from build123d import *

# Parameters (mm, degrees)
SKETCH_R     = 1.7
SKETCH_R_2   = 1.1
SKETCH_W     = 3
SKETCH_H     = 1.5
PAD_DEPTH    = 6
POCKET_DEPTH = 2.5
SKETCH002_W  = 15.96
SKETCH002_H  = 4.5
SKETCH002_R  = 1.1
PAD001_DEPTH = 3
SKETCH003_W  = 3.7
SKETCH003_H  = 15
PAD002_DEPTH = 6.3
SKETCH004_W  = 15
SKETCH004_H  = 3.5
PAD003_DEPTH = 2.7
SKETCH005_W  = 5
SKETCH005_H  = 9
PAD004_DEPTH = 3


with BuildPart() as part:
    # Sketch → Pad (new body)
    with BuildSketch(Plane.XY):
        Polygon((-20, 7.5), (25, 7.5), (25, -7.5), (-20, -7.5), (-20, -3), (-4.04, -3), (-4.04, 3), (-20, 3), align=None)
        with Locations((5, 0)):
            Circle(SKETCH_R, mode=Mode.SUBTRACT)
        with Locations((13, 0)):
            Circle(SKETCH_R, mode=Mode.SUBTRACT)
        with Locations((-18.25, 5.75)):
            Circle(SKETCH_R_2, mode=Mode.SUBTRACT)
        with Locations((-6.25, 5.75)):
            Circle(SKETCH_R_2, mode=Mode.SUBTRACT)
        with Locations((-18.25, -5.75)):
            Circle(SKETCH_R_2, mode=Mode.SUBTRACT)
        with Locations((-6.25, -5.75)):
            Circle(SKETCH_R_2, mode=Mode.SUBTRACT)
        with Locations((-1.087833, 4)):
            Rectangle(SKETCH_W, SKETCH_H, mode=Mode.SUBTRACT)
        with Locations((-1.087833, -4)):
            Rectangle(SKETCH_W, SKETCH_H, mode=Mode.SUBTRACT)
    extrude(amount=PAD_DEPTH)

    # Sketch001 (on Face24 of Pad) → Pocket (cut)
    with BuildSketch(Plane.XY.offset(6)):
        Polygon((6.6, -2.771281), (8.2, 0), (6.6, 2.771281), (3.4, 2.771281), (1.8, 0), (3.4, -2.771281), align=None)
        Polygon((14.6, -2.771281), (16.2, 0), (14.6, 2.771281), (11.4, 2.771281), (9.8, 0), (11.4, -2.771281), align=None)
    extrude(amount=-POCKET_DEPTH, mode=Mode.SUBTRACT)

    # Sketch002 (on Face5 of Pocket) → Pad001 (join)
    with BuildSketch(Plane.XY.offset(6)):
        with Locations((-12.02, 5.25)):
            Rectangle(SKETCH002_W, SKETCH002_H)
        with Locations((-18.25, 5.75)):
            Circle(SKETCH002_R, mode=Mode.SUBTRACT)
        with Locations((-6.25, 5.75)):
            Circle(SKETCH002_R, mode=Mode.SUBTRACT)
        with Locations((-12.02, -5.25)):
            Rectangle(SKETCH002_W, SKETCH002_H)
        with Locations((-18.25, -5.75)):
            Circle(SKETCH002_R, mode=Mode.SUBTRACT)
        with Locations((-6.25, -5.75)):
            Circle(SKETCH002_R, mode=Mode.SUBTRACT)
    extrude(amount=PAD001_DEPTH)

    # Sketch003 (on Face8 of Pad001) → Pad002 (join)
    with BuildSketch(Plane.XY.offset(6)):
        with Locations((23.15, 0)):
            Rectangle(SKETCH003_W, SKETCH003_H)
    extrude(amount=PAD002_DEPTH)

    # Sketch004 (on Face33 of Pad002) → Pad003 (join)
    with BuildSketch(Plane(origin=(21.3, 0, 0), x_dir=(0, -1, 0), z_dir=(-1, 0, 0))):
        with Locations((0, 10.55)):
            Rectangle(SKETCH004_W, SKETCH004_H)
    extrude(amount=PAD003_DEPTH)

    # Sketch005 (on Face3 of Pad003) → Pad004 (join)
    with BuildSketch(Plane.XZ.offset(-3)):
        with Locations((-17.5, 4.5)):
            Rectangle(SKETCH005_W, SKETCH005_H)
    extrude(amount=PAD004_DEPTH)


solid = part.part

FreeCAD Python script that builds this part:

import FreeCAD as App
import Part
import Sketcher
from FreeCAD import Vector
Q = App.Units.Quantity

doc = App.newDocument("Part")
body = doc.addObject("PartDesign::Body", "Body")

sketch1 = body.newObject("Sketcher::SketchObject", "Sketch")
sketch1.AttachmentSupport = (doc.getObject("XY_Plane"), [""])
sketch1.MapMode = "FlatFace"
sketch1.addGeometry([
    Part.LineSegment(Vector(25, 7.5, 0), Vector(-20, 7.5, 0)),
    Part.LineSegment(Vector(-20, 7.5, 0), Vector(-20, 3, 0)),
    Part.LineSegment(Vector(-20, 3, 0), Vector(-4.04, 3, 0)),
    Part.LineSegment(Vector(-4.04, 3, 0), Vector(-4.04, -3, 0)),
    Part.LineSegment(Vector(-4.04, -3, 0), Vector(-20, -3, 0)),
    Part.LineSegment(Vector(-20, -3, 0), Vector(-20, -7.5, 0)),
    Part.LineSegment(Vector(-20, -7.5, 0), Vector(25, -7.5, 0)),
    Part.LineSegment(Vector(25, -7.5, 0), Vector(25, 7.5, 0)),
    Part.LineSegment(Vector(-2.587833, -4.75, 0), Vector(-2.587833, -3.25, 0)),
    Part.LineSegment(Vector(-2.587833, -3.25, 0), Vector(0.412167, -3.25, 0)),
    Part.LineSegment(Vector(0.412167, -3.25, 0), Vector(0.412167, -4.75, 0)),
    Part.LineSegment(Vector(0.412167, -4.75, 0), Vector(-2.587833, -4.75, 0)),
    Part.Circle(Vector(13, 0, 0), Vector(0, 0, 1), 1.7),
    Part.Circle(Vector(5, 0, 0), Vector(0, 0, 1), 1.7),
    Part.Circle(Vector(-6.25, -5.75, 0), Vector(0, 0, 1), 1.1),
    Part.Circle(Vector(-18.25, -5.75, 0), Vector(0, 0, 1), 1.1),
    Part.LineSegment(Vector(-2.587833, 3.25, 0), Vector(-2.587833, 4.75, 0)),
    Part.LineSegment(Vector(-2.587833, 4.75, 0), Vector(0.412167, 4.75, 0)),
    Part.LineSegment(Vector(0.412167, 4.75, 0), Vector(0.412167, 3.25, 0)),
    Part.LineSegment(Vector(0.412167, 3.25, 0), Vector(-2.587833, 3.25, 0)),
    Part.Circle(Vector(-6.25, 5.75, 0), Vector(0, 0, 1), 1.1),
    Part.Circle(Vector(-18.25, 5.75, 0), Vector(0, 0, 1), 1.1),
], False)
sketch1.addConstraint([
    Sketcher.Constraint("Coincident", 0, 2, 1, 1),
    Sketcher.Constraint("Coincident", 1, 2, 2, 1),
    Sketcher.Constraint("Coincident", 2, 2, 3, 1),
    Sketcher.Constraint("Coincident", 3, 2, 4, 1),
    Sketcher.Constraint("Coincident", 4, 2, 5, 1),
    Sketcher.Constraint("Coincident", 5, 2, 6, 1),
    Sketcher.Constraint("Coincident", 6, 2, 7, 1),
    Sketcher.Constraint("Coincident", 7, 2, 0, 1),
    Sketcher.Constraint("Coincident", 8, 2, 9, 1),
    Sketcher.Constraint("Coincident", 9, 2, 10, 1),
    Sketcher.Constraint("Coincident", 10, 2, 11, 1),
    Sketcher.Constraint("Coincident", 11, 2, 8, 1),
    Sketcher.Constraint("Coincident", 16, 2, 17, 1),
    Sketcher.Constraint("Coincident", 17, 2, 18, 1),
    Sketcher.Constraint("Coincident", 18, 2, 19, 1),
    Sketcher.Constraint("Coincident", 19, 2, 16, 1),
    Sketcher.Constraint("Horizontal", 0),
    Sketcher.Constraint("Vertical", 1),
    Sketcher.Constraint("Horizontal", 2),
    Sketcher.Constraint("Vertical", 3),
    Sketcher.Constraint("Horizontal", 4),
    Sketcher.Constraint("Vertical", 5),
    Sketcher.Constraint("Horizontal", 6),
    Sketcher.Constraint("Vertical", 7),
    Sketcher.Constraint("Vertical", 8),
    Sketcher.Constraint("Horizontal", 9),
    Sketcher.Constraint("Vertical", 10),
    Sketcher.Constraint("Horizontal", 11),
    Sketcher.Constraint("Vertical", 16),
    Sketcher.Constraint("Horizontal", 17),
    Sketcher.Constraint("Vertical", 18),
    Sketcher.Constraint("Horizontal", 19),
    Sketcher.Constraint("Equal", 12, 13),
    Sketcher.Constraint("Equal", 14, 15),
    Sketcher.Constraint("Equal", 15, 20),
    Sketcher.Constraint("Equal", 20, 21),
    Sketcher.Constraint("Symmetric", 14, 3, 20, 3, -1),
    Sketcher.Constraint("Symmetric", 15, 3, 21, 3, -1),
    Sketcher.Constraint("Symmetric", 1, 2, 4, 2, -1),
    Sketcher.Constraint("Symmetric", 11, 2, 16, 2, -1),
    Sketcher.Constraint("Symmetric", 9, 2, 18, 2, -1),
    Sketcher.Constraint("PointOnObject", 12, 3, -1),
    Sketcher.Constraint("PointOnObject", 13, 3, -1),
    Sketcher.Constraint("Horizontal", 14, 3, 15, 3),
    Sketcher.Constraint("Equal", 1, 5),
    Sketcher.Constraint("Diameter", 12, Q("3.4 mm")),
    Sketcher.Constraint("Diameter", 14, Q("2.2 mm")),
    Sketcher.Constraint("DistanceX", 0, 2, 0, 1, Q("45 mm")),
    Sketcher.Constraint("DistanceX", 9, 1, 9, 2, Q("3 mm")),
    Sketcher.Constraint("DistanceY", 3, 2, 3, 1, Q("6 mm")),
    Sketcher.Constraint("DistanceY", 7, 1, 7, 2, Q("15 mm")),
    Sketcher.Constraint("DistanceY", 8, 1, 8, 2, Q("1.5 mm")),
    Sketcher.Constraint("DistanceX", -1, 1, 12, 3, Q("13 mm")),
    Sketcher.Constraint("DistanceX", -1, 1, 13, 3, Q("5 mm")),
    Sketcher.Constraint("DistanceX", 0, 2, -1, 1, Q("20 mm")),
    Sketcher.Constraint("DistanceX", 15, 3, 14, 3, Q("12 mm")),
    Sketcher.Constraint("DistanceY", 8, 2, 20, 3, Q("9 mm")),
    Sketcher.Constraint("DistanceY", 14, 3, 10, 2, Q("1 mm")),
    Sketcher.Constraint("DistanceX", 2, 1, 2, 2, Q("15.96 mm")),
    Sketcher.Constraint("DistanceX", 14, 3, -1, 1, Q("6.25 mm")),
    Sketcher.Constraint("DistanceX", 8, 2, -1, 1, Q("2.587833 mm")),
])
pad1 = body.newObject("PartDesign::Pad", "Pad")
pad1.Profile = sketch1
pad1.Length = 6

sketch2 = body.newObject("Sketcher::SketchObject", "Sketch001")
sketch2.AttachmentSupport = (doc.getObject("XY_Plane"), [""])
sketch2.MapMode = "FlatFace"
sketch2.AttachmentOffset = App.Placement(Vector(0, 0, 6), App.Rotation())
sketch2.addGeometry([
    Part.LineSegment(Vector(6.6, -2.771281, 0), Vector(8.2, 0, 0)),
    Part.LineSegment(Vector(8.2, 0, 0), Vector(6.6, 2.771281, 0)),
    Part.LineSegment(Vector(6.6, 2.771281, 0), Vector(3.4, 2.771281, 0)),
    Part.LineSegment(Vector(3.4, 2.771281, 0), Vector(1.8, 0, 0)),
    Part.LineSegment(Vector(1.8, 0, 0), Vector(3.4, -2.771281, 0)),
    Part.LineSegment(Vector(3.4, -2.771281, 0), Vector(6.6, -2.771281, 0)),
    Part.LineSegment(Vector(14.6, -2.771281, 0), Vector(16.2, 0, 0)),
    Part.LineSegment(Vector(16.2, 0, 0), Vector(14.6, 2.771281, 0)),
    Part.LineSegment(Vector(14.6, 2.771281, 0), Vector(11.4, 2.771281, 0)),
    Part.LineSegment(Vector(11.4, 2.771281, 0), Vector(9.8, 0, 0)),
    Part.LineSegment(Vector(9.8, 0, 0), Vector(11.4, -2.771281, 0)),
    Part.LineSegment(Vector(11.4, -2.771281, 0), Vector(14.6, -2.771281, 0)),
], False)
sketch2.addConstraint([
    Sketcher.Constraint("Coincident", 0, 2, 1, 1),
    Sketcher.Constraint("Coincident", 1, 2, 2, 1),
    Sketcher.Constraint("Coincident", 2, 2, 3, 1),
    Sketcher.Constraint("Coincident", 3, 2, 4, 1),
    Sketcher.Constraint("Coincident", 4, 2, 5, 1),
    Sketcher.Constraint("Coincident", 5, 2, 0, 1),
    Sketcher.Constraint("Coincident", 6, 2, 7, 1),
    Sketcher.Constraint("Coincident", 7, 2, 8, 1),
    Sketcher.Constraint("Coincident", 8, 2, 9, 1),
    Sketcher.Constraint("Coincident", 9, 2, 10, 1),
    Sketcher.Constraint("Coincident", 10, 2, 11, 1),
    Sketcher.Constraint("Coincident", 11, 2, 6, 1),
    Sketcher.Constraint("Horizontal", 2),
    Sketcher.Constraint("Horizontal", 5),
    Sketcher.Constraint("Horizontal", 8),
    Sketcher.Constraint("Horizontal", 11),
    Sketcher.Constraint("Symmetric", 2, 2, 4, 2, -1),
    Sketcher.Constraint("Symmetric", 8, 2, 10, 2, -1),
    Sketcher.Constraint("PointOnObject", 0, 2, -1),
    Sketcher.Constraint("PointOnObject", 3, 2, -1),
    Sketcher.Constraint("PointOnObject", 6, 2, -1),
    Sketcher.Constraint("PointOnObject", 9, 2, -1),
    Sketcher.Constraint("Parallel", 0, 3),
    Sketcher.Constraint("Parallel", 1, 4),
    Sketcher.Constraint("Parallel", 3, 6),
    Sketcher.Constraint("Parallel", 4, 7),
    Sketcher.Constraint("Parallel", 6, 9),
    Sketcher.Constraint("Horizontal", 2, 2, 7, 2),
    Sketcher.Constraint("Equal", 5, 8),
    Sketcher.Constraint("Angle", 0, Q("59.999997 deg")),
    Sketcher.Constraint("DistanceX", 2, 2, 2, 1, Q("3.2 mm")),
    Sketcher.Constraint("DistanceX", 0, 2, 6, 2, Q("8 mm")),
    Sketcher.Constraint("Distance", 0, Q("3.2 mm")),
    Sketcher.Constraint("DistanceX", -1, 1, 0, 2, Q("8.2 mm")),
])
pocket1 = body.newObject("PartDesign::Pocket", "Pocket")
pocket1.Profile = sketch2
pocket1.Length = 2.5

sketch3 = body.newObject("Sketcher::SketchObject", "Sketch002")
sketch3.AttachmentSupport = (doc.getObject("XY_Plane"), [""])
sketch3.MapMode = "FlatFace"
sketch3.AttachmentOffset = App.Placement(Vector(0, 0, 6), App.Rotation())
sketch3.addGeometry([
    Part.LineSegment(Vector(-20, 7.5, 0), Vector(-20, 3, 0)),
    Part.LineSegment(Vector(-20, 3, 0), Vector(-4.04, 3, 0)),
    Part.LineSegment(Vector(-4.04, 3, 0), Vector(-4.04, 7.5, 0)),
    Part.LineSegment(Vector(-4.04, 7.5, 0), Vector(-20, 7.5, 0)),
    Part.Circle(Vector(-18.25, 5.75, 0), Vector(0, 0, 1), 1.1),
    Part.Circle(Vector(-6.25, 5.75, 0), Vector(0, 0, 1), 1.1),
    Part.LineSegment(Vector(-20, -3, 0), Vector(-20, -7.5, 0)),
    Part.LineSegment(Vector(-20, -7.5, 0), Vector(-4.04, -7.5, 0)),
    Part.LineSegment(Vector(-4.04, -7.5, 0), Vector(-4.04, -3, 0)),
    Part.LineSegment(Vector(-4.04, -3, 0), Vector(-20, -3, 0)),
    Part.Circle(Vector(-18.25, -5.75, 0), Vector(0, 0, 1), 1.1),
    Part.Circle(Vector(-6.25, -5.75, 0), Vector(0, 0, 1), 1.1),
], False)
sketch3.addConstraint([
    Sketcher.Constraint("Coincident", 0, 2, 1, 1),
    Sketcher.Constraint("Coincident", 1, 2, 2, 1),
    Sketcher.Constraint("Coincident", 2, 2, 3, 1),
    Sketcher.Constraint("Coincident", 3, 2, 0, 1),
    Sketcher.Constraint("Coincident", 6, 2, 7, 1),
    Sketcher.Constraint("Coincident", 7, 2, 8, 1),
    Sketcher.Constraint("Coincident", 8, 2, 9, 1),
    Sketcher.Constraint("Coincident", 9, 2, 6, 1),
    Sketcher.Constraint("Vertical", 0),
    Sketcher.Constraint("Horizontal", 1),
    Sketcher.Constraint("Vertical", 2),
    Sketcher.Constraint("Horizontal", 3),
    Sketcher.Constraint("Vertical", 6),
    Sketcher.Constraint("Horizontal", 7),
    Sketcher.Constraint("Vertical", 8),
    Sketcher.Constraint("Horizontal", 9),
    Sketcher.Constraint("Equal", 4, 5),
    Sketcher.Constraint("Equal", 5, 10),
    Sketcher.Constraint("Equal", 10, 11),
    Sketcher.Constraint("Symmetric", 4, 3, 10, 3, -1),
    Sketcher.Constraint("Symmetric", 5, 3, 11, 3, -1),
    Sketcher.Constraint("Symmetric", 3, 2, 6, 2, -1),
    Sketcher.Constraint("Symmetric", 1, 2, 8, 2, -1),
    Sketcher.Constraint("Horizontal", 4, 3, 5, 3),
    Sketcher.Constraint("Diameter", 4, Q("2.2 mm")),
    Sketcher.Constraint("DistanceY", 0, 2, 0, 1, Q("4.5 mm")),
    Sketcher.Constraint("DistanceX", 0, 2, -1, 1, Q("20 mm")),
    Sketcher.Constraint("DistanceY", -1, 1, 0, 2, Q("3 mm")),
    Sketcher.Constraint("DistanceX", 4, 3, 5, 3, Q("12 mm")),
    Sketcher.Constraint("DistanceX", 1, 1, 1, 2, Q("15.96 mm")),
    Sketcher.Constraint("DistanceY", 10, 3, 4, 3, Q("11.5 mm")),
    Sketcher.Constraint("DistanceX", 4, 3, -1, 1, Q("18.25 mm")),
])
pad2 = body.newObject("PartDesign::Pad", "Pad001")
pad2.Profile = sketch3
pad2.Length = 3

sketch4 = body.newObject("Sketcher::SketchObject", "Sketch003")
sketch4.AttachmentSupport = (doc.getObject("XY_Plane"), [""])
sketch4.MapMode = "FlatFace"
sketch4.AttachmentOffset = App.Placement(Vector(0, 0, 6), App.Rotation())
sketch4.addGeometry([
    Part.LineSegment(Vector(21.3, 7.5, 0), Vector(21.3, -7.5, 0)),
    Part.LineSegment(Vector(21.3, -7.5, 0), Vector(25, -7.5, 0)),
    Part.LineSegment(Vector(25, -7.5, 0), Vector(25, 7.5, 0)),
    Part.LineSegment(Vector(25, 7.5, 0), Vector(21.3, 7.5, 0)),
], False)
sketch4.addConstraint([
    Sketcher.Constraint("Coincident", 0, 2, 1, 1),
    Sketcher.Constraint("Coincident", 1, 2, 2, 1),
    Sketcher.Constraint("Coincident", 2, 2, 3, 1),
    Sketcher.Constraint("Coincident", 3, 2, 0, 1),
    Sketcher.Constraint("Vertical", 0),
    Sketcher.Constraint("Horizontal", 1),
    Sketcher.Constraint("Vertical", 2),
    Sketcher.Constraint("Horizontal", 3),
    Sketcher.Constraint("DistanceY", 0, 2, 0, 1, Q("15 mm")),
    Sketcher.Constraint("DistanceX", 1, 1, 1, 2, Q("3.7 mm")),
    Sketcher.Constraint("DistanceX", -1, 1, 1, 2, Q("25 mm")),
    Sketcher.Constraint("DistanceY", 0, 2, -1, 1, Q("7.5 mm")),
])
pad3 = body.newObject("PartDesign::Pad", "Pad002")
pad3.Profile = sketch4
pad3.Length = 6.3

sketch5 = body.newObject("Sketcher::SketchObject", "Sketch004")
sketch5.AttachmentSupport = (doc.getObject("YZ_Plane"), [""])
sketch5.MapMode = "FlatFace"
sketch5.AttachmentOffset = App.Placement(Vector(0, 0, 21.3), App.Rotation())
sketch5.addGeometry([
    Part.LineSegment(Vector(7.5, 12.3, 0), Vector(7.5, 8.8, 0)),
    Part.LineSegment(Vector(7.5, 8.8, 0), Vector(-7.5, 8.8, 0)),
    Part.LineSegment(Vector(-7.5, 8.8, 0), Vector(-7.5, 12.3, 0)),
    Part.LineSegment(Vector(-7.5, 12.3, 0), Vector(7.5, 12.3, 0)),
], False)
sketch5.addConstraint([
    Sketcher.Constraint("Coincident", 0, 2, 1, 1),
    Sketcher.Constraint("Coincident", 1, 2, 2, 1),
    Sketcher.Constraint("Coincident", 2, 2, 3, 1),
    Sketcher.Constraint("Coincident", 3, 2, 0, 1),
    Sketcher.Constraint("Vertical", 0),
    Sketcher.Constraint("Horizontal", 1),
    Sketcher.Constraint("Vertical", 2),
    Sketcher.Constraint("Horizontal", 3),
    Sketcher.Constraint("DistanceX", 1, 2, 1, 1, Q("15 mm")),
    Sketcher.Constraint("DistanceY", 0, 2, 0, 1, Q("3.5 mm")),
    Sketcher.Constraint("DistanceX", -1, 1, 0, 2, Q("7.5 mm")),
    Sketcher.Constraint("DistanceY", -1, 1, 0, 2, Q("8.8 mm")),
])
pad4 = body.newObject("PartDesign::Pad", "Pad003")
pad4.Profile = sketch5
pad4.Length = 2.7
pad4.Reversed = True

sketch6 = body.newObject("Sketcher::SketchObject", "Sketch005")
sketch6.AttachmentSupport = (doc.getObject("XZ_Plane"), [""])
sketch6.MapMode = "FlatFace"
sketch6.AttachmentOffset = App.Placement(Vector(0, 0, -3), App.Rotation())
sketch6.addGeometry([
    Part.LineSegment(Vector(-20, 9, 0), Vector(-20, 0, 0)),
    Part.LineSegment(Vector(-20, 0, 0), Vector(-15, 0, 0)),
    Part.LineSegment(Vector(-15, 0, 0), Vector(-15, 9, 0)),
    Part.LineSegment(Vector(-15, 9, 0), Vector(-20, 9, 0)),
], False)
sketch6.addConstraint([
    Sketcher.Constraint("Coincident", 0, 2, 1, 1),
    Sketcher.Constraint("Coincident", 1, 2, 2, 1),
    Sketcher.Constraint("Coincident", 2, 2, 3, 1),
    Sketcher.Constraint("Coincident", 3, 2, 0, 1),
    Sketcher.Constraint("Vertical", 0),
    Sketcher.Constraint("Horizontal", 1),
    Sketcher.Constraint("Vertical", 2),
    Sketcher.Constraint("Horizontal", 3),
    Sketcher.Constraint("PointOnObject", 0, 2, -1),
    Sketcher.Constraint("DistanceX", 1, 1, 1, 2, Q("5 mm")),
    Sketcher.Constraint("DistanceY", 0, 2, 0, 1, Q("9 mm")),
    Sketcher.Constraint("DistanceX", 0, 2, -1, 1, Q("20 mm")),
])
pad5 = body.newObject("PartDesign::Pad", "Pad004")
pad5.Profile = sketch6
pad5.Length = 3

doc.recompute()
